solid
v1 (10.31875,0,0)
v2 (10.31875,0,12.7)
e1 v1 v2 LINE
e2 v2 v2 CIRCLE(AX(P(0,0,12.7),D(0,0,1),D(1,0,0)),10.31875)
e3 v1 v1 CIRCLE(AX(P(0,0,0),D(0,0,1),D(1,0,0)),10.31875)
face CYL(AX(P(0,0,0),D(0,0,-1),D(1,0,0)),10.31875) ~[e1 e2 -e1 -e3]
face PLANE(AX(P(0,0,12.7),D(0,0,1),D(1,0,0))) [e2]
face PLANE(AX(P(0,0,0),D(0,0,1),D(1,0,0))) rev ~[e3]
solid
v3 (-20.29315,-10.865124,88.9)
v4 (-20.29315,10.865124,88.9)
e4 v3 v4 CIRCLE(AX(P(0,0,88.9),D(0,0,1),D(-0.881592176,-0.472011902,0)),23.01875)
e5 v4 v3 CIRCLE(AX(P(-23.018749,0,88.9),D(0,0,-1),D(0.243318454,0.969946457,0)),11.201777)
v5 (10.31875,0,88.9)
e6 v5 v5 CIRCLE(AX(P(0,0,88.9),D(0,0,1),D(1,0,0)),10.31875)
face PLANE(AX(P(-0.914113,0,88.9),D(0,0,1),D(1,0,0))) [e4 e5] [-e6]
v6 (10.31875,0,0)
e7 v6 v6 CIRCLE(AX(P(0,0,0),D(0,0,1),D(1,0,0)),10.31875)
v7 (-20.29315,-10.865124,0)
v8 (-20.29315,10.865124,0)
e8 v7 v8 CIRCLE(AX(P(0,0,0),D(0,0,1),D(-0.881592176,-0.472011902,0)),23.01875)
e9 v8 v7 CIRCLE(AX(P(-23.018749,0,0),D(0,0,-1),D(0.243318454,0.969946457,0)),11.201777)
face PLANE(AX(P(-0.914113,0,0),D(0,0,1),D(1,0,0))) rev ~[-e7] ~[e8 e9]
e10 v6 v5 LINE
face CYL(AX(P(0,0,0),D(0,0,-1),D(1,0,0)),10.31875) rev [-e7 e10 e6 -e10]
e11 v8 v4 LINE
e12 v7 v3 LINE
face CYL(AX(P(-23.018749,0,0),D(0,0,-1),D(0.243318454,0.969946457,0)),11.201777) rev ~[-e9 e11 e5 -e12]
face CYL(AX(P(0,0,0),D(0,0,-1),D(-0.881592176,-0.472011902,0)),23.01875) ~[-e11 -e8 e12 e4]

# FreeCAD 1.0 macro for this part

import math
import FreeCAD as App
import Part
import Sketcher
Q = App.Units.Quantity

doc = App.newDocument("Part")
body = doc.addObject("PartDesign::Body", "Body")

sketch1 = body.newObject("Sketcher::SketchObject", "Sketch")
sketch1.AttachmentSupport = (doc.getObject("XY_Plane"), [""])
sketch1.MapMode = "FlatFace"
sketch1.addGeometry(Part.Circle(App.Vector(0, 0, 0), App.Vector(0, 0, 1), 10), False)
sketch1.addConstraint([
    Sketcher.Constraint("Coincident", 0, 3, -1, 1),
    Sketcher.Constraint("Diameter", 0, Q("0.8125 in")),
])
pad1 = body.newObject("PartDesign::Pad", "Pad")
pad1.Profile = sketch1
pad1.Length = Q("0.5 in")
body2 = doc.addObject("PartDesign::Body", "Body001")

sketch2 = body2.newObject("Sketcher::SketchObject", "Sketch001")
sketch2.AttachmentSupport = (doc.getObject("XY_Plane001"), [""])
sketch2.MapMode = "FlatFace"
sketch2.addGeometry([
    Part.ArcOfCircle(Part.Circle(App.Vector(-23, 0, 0), App.Vector(0, 0, 1), 11), math.radians(-76), math.radians(76)),
    Part.ArcOfCircle(Part.Circle(App.Vector(0, 0, 0), App.Vector(0, 0, 1), 23), math.radians(-152), math.radians(152)),
    Part.Circle(App.Vector(0, 0, 0), App.Vector(0, 0, 1), 10),
], False)
sketch2.addConstraint([
    Sketcher.Constraint("Coincident", 0, 1, 1, 1),
    Sketcher.Constraint("Coincident", 1, 2, 0, 2),
    Sketcher.Constraint("Coincident", 1, 3, -1, 1),
    Sketcher.Constraint("Coincident", 2, 3, -1, 1),
    Sketcher.Constraint("PointOnObject", 0, 3, -1),
    Sketcher.Constraint("Diameter", 2, Q("0.8125 in")),
    Sketcher.Constraint("Radius", 1, Q("0.90625 in")),
    Sketcher.Constraint("DistanceX", 0, 3, -1, 1, Q("0.90625 in")),
    Sketcher.Constraint("Radius", 0, Q("11.201777 mm")),
])
pad2 = body2.newObject("PartDesign::Pad", "Pad001")
pad2.Profile = sketch2
pad2.Length = Q("3.5 in")

doc.recompute()
